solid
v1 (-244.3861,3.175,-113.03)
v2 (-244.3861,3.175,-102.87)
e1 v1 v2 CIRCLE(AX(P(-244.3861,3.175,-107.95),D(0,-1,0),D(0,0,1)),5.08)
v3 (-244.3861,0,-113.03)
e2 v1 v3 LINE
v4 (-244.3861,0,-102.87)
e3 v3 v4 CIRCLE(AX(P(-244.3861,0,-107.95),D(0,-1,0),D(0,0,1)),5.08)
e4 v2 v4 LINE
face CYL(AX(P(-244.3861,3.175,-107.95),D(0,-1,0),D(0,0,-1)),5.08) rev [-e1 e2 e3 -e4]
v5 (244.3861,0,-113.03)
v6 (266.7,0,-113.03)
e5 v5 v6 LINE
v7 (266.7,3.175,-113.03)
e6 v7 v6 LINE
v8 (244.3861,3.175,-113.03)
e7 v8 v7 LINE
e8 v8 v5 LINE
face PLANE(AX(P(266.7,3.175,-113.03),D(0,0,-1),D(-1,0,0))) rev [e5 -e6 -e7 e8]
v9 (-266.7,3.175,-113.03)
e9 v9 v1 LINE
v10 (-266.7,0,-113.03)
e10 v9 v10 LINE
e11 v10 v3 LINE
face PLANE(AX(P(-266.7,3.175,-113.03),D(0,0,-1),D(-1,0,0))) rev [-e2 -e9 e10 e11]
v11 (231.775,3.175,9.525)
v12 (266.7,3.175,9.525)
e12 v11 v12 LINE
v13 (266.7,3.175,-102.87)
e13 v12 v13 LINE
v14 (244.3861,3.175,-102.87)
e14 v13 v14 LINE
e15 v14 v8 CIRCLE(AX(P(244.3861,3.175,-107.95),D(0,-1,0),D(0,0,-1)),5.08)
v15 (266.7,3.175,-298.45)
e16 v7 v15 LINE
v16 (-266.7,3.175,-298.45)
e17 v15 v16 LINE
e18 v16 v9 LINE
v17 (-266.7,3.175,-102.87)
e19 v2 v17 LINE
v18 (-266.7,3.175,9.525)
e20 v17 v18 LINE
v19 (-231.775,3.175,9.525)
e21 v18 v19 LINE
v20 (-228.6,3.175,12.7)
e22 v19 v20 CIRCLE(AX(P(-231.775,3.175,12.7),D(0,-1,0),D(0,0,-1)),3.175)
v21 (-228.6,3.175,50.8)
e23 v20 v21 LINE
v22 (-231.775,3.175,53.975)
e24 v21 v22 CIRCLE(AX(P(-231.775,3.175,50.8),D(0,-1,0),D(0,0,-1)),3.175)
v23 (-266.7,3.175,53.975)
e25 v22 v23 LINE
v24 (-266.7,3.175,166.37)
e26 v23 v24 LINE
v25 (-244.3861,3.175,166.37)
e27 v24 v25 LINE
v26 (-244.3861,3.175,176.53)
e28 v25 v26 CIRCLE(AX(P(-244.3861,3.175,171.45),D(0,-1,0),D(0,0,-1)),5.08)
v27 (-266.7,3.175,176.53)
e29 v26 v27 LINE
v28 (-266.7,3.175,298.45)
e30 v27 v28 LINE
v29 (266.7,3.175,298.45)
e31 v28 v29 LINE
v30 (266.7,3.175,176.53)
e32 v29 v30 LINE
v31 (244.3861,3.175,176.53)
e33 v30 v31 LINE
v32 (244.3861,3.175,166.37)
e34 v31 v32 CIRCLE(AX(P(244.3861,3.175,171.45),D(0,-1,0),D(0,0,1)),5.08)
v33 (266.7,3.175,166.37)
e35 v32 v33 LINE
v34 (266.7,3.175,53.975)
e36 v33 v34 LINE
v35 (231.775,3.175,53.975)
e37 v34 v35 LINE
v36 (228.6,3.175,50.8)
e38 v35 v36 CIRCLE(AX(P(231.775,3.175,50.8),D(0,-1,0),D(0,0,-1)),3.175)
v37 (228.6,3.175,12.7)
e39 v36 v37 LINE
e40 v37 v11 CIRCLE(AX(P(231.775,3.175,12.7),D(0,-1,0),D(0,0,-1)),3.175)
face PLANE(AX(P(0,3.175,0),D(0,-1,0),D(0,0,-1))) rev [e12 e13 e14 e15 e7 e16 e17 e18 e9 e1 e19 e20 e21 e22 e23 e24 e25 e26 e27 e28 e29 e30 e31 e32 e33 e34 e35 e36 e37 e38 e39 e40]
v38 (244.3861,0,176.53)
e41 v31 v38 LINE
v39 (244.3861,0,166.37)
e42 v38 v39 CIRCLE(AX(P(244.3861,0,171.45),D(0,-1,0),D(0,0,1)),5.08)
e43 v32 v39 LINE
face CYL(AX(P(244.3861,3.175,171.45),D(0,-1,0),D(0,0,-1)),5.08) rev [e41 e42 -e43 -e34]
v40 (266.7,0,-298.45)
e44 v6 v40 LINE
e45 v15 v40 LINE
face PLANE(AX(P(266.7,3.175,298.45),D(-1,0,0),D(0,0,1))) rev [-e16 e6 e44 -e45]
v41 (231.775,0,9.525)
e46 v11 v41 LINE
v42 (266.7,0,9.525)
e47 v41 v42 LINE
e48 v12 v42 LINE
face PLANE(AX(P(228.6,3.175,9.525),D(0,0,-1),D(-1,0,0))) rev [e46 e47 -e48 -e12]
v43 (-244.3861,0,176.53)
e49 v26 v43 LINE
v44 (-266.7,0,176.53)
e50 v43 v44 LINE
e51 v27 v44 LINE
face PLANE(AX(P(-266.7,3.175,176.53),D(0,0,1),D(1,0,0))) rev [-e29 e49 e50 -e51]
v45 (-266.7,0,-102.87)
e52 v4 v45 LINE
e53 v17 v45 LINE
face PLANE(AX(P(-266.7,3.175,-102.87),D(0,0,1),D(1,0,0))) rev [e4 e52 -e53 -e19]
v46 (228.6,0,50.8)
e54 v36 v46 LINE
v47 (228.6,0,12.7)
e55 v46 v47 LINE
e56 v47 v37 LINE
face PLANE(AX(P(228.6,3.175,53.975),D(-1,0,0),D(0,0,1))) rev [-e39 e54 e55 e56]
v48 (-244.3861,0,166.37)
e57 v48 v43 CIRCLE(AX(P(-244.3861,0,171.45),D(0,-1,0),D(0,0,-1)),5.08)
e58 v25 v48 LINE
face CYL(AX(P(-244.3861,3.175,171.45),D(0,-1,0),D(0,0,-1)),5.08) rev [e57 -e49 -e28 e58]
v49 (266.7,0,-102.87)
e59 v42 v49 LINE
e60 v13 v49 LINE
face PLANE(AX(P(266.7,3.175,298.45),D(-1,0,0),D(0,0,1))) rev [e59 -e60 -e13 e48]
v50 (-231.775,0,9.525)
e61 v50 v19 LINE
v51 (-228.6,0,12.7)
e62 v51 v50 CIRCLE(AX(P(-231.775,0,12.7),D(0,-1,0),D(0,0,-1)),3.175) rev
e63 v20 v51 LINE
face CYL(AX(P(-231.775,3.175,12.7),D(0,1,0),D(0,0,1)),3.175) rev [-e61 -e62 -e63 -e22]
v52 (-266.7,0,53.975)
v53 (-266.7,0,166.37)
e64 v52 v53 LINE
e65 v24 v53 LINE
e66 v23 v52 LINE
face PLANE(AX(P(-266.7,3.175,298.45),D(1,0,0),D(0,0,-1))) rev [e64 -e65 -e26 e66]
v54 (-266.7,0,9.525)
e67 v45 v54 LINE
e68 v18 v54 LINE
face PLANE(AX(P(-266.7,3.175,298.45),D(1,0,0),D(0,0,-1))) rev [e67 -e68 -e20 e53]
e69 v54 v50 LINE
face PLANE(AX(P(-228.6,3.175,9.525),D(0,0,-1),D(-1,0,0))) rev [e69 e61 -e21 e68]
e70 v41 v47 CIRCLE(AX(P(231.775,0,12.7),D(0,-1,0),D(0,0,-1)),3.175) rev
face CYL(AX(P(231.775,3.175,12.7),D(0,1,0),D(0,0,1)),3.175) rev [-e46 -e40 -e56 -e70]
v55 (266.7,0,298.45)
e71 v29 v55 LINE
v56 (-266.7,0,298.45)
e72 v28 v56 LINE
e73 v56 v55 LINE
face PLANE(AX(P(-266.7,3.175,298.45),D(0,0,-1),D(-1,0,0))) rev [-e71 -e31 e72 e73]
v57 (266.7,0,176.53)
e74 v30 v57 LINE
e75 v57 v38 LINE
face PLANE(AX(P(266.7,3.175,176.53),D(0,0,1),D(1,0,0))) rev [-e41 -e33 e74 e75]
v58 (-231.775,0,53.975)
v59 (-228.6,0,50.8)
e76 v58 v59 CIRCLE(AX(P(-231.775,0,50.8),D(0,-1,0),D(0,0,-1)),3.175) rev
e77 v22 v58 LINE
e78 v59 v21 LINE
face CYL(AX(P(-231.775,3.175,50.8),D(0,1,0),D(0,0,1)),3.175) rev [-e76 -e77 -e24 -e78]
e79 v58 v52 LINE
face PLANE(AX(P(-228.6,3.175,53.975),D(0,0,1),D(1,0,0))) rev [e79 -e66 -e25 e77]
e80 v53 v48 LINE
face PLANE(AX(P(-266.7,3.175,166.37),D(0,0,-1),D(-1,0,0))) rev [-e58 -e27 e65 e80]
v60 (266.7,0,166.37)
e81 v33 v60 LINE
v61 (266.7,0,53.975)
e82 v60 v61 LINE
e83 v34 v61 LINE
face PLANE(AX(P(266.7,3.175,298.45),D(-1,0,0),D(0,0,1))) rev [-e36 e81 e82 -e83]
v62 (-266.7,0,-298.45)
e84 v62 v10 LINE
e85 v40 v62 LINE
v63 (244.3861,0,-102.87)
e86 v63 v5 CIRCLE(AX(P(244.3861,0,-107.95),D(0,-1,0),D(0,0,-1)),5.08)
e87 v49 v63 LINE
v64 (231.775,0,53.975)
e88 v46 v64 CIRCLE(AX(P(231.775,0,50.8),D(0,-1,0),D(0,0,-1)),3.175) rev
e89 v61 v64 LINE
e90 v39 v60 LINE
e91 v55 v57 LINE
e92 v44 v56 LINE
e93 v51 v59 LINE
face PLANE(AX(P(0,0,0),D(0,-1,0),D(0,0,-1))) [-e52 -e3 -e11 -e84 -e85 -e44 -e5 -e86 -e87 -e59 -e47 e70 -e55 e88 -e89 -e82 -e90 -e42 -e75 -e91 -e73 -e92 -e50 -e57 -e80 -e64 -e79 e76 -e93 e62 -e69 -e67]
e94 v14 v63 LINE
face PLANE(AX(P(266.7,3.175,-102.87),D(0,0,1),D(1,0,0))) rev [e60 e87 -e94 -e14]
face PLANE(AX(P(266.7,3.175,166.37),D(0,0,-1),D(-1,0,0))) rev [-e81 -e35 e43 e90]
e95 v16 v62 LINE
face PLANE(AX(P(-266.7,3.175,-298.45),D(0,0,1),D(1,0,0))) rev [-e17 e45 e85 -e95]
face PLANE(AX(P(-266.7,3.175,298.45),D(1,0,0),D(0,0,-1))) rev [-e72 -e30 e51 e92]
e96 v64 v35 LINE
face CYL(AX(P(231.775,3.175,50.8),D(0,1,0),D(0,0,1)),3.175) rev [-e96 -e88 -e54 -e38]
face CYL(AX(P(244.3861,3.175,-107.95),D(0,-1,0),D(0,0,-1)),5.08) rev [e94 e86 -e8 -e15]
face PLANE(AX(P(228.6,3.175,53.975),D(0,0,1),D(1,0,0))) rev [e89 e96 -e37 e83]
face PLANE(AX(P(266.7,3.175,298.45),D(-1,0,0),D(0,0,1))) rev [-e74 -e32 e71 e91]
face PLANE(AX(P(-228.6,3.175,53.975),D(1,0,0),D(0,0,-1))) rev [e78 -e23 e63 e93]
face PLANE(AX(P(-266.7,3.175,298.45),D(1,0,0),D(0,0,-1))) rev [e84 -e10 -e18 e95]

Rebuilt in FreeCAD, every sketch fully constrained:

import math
import FreeCAD as App
import Part
import Sketcher

V = App.Vector
Q = App.Units.Quantity


def edges_at(feature, points):
    """Names of the edges that pass closest to the given points."""
    edges = feature.Shape.Edges
    near = lambda p: min(range(len(edges)), key=lambda i: edges[i].distToShape(Part.Vertex(*p))[0])
    return sorted({f"Edge{near(p) + 1}" for p in points})

doc = App.newDocument("Part")
body = doc.addObject("PartDesign::Body", "Body")

sketch1 = doc.addObject("Sketcher::SketchObject", "Sketch")
body.addObject(sketch1)
sketch1.AttachmentSupport = (doc.XZ_Plane, [""])
sketch1.MapMode = "FlatFace"
sketch1.addGeometry([
    Part.LineSegment(V(-267, -298, 0), V(-267, 298, 0)),
    Part.LineSegment(V(-267, 298, 0), V(267, 298, 0)),
    Part.LineSegment(V(267, 298, 0), V(267, -298, 0)),
    Part.LineSegment(V(267, -298, 0), V(-267, -298, 0)),
], False)
sketch1.addConstraint([
    Sketcher.Constraint("Coincident", 0, 2, 1, 1),
    Sketcher.Constraint("Coincident", 1, 2, 2, 1),
    Sketcher.Constraint("Coincident", 2, 2, 3, 1),
    Sketcher.Constraint("Coincident", 3, 2, 0, 1),
    Sketcher.Constraint("Vertical", 0),
    Sketcher.Constraint("Horizontal", 1),
    Sketcher.Constraint("Vertical", 2),
    Sketcher.Constraint("Horizontal", 3),
    Sketcher.Constraint("Symmetric", 0, 2, 2, 2, -1, 1),
    Sketcher.Constraint("DistanceX", 1, 1, 1, 2, Q("21 in")),
    Sketcher.Constraint("DistanceY", 0, 1, 0, 2, Q("23.5 in")),
])
pad1 = doc.addObject("PartDesign::Pad", "Pad")
body.addObject(pad1)
pad1.Profile = sketch1
pad1.Length = Q("0.125 in")
pad1.Reversed = True

sketch2 = doc.addObject("Sketcher::SketchObject", "Sketch001")
body.addObject(sketch2)
sketch2.AttachmentSupport = (doc.XZ_Plane, [""])
sketch2.MapMode = "FlatFace"
sketch2.addGeometry([
    Part.LineSegment(V(-267, 54, 0), V(-267, 10, 0)),
    Part.LineSegment(V(-267, 10, 0), V(-229, 10, 0)),
    Part.LineSegment(V(-229, 10, 0), V(-229, 54, 0)),
    Part.LineSegment(V(-229, 54, 0), V(-267, 54, 0)),
    Part.LineSegment(V(229, 54, 0), V(229, 10, 0)),
    Part.LineSegment(V(229, 10, 0), V(267, 10, 0)),
    Part.LineSegment(V(267, 10, 0), V(267, 54, 0)),
    Part.LineSegment(V(267, 54, 0), V(229, 54, 0)),
], False)
sketch2.addConstraint([
    Sketcher.Constraint("Coincident", 0, 2, 1, 1),
    Sketcher.Constraint("Coincident", 1, 2, 2, 1),
    Sketcher.Constraint("Coincident", 2, 2, 3, 1),
    Sketcher.Constraint("Coincident", 3, 2, 0, 1),
    Sketcher.Constraint("Coincident", 4, 2, 5, 1),
    Sketcher.Constraint("Coincident", 5, 2, 6, 1),
    Sketcher.Constraint("Coincident", 6, 2, 7, 1),
    Sketcher.Constraint("Coincident", 7, 2, 4, 1),
    Sketcher.Constraint("Vertical", 0),
    Sketcher.Constraint("Horizontal", 1),
    Sketcher.Constraint("Vertical", 2),
    Sketcher.Constraint("Horizontal", 3),
    Sketcher.Constraint("Vertical", 4),
    Sketcher.Constraint("Horizontal", 5),
    Sketcher.Constraint("Vertical", 6),
    Sketcher.Constraint("Horizontal", 7),
    Sketcher.Constraint("Symmetric", 1, 2, 4, 2, -2),
    Sketcher.Constraint("Symmetric", 3, 2, 6, 2, -2),
    Sketcher.Constraint("DistanceX", 1, 1, 1, 2, Q("1.5 in")),
    Sketcher.Constraint("DistanceX", 1, 2, -1, 1, Q("9 in")),
    Sketcher.Constraint("DistanceY", 0, 2, 0, 1, Q("1.75 in")),
    Sketcher.Constraint("DistanceY", -1, 1, 0, 2, Q("0.375 in")),
])
pocket1 = doc.addObject("PartDesign::Pocket", "Pocket")
body.addObject(pocket1)
pocket1.Profile = sketch2
pocket1.Type = "ThroughAll"
doc.recompute()

fillet = doc.addObject("PartDesign::Fillet", "Fillet")
body.addObject(fillet)
fillet.Base = (pocket1, edges_at(pocket1, [
    (-228.6, 1.587, 53.975),
    (-228.6, 1.587, 9.525),
    (228.6, 1.587, 9.525),
    (228.6, 1.587, 53.975),
]))
fillet.Radius = Q("0.125 in")

sketch3 = doc.addObject("Sketcher::SketchObject", "Sketch002")
body.addObject(sketch3)
sketch3.AttachmentSupport = (doc.XZ_Plane, [""])
sketch3.MapMode = "FlatFace"
sketch3.addGeometry([
    Part.LineSegment(V(-244, 177, 0), V(-267, 177, 0)),
    Part.ArcOfCircle(Part.Circle(V(-267, 171, 0), V(0, 0, 1), 5), math.radians(90), math.radians(270)),
    Part.LineSegment(V(-267, 166, 0), V(-244, 166, 0)),
    Part.ArcOfCircle(Part.Circle(V(-244, 171, 0), V(0, 0, 1), 5), math.radians(-90), math.radians(90)),
    Part.LineSegment(V(-267, -113, 0), V(-244, -113, 0)),
    Part.ArcOfCircle(Part.Circle(V(-244, -108, 0), V(0, 0, 1), 5), math.radians(-90), math.radians(90)),
    Part.LineSegment(V(-244, -103, 0), V(-267, -103, 0)),
    Part.ArcOfCircle(Part.Circle(V(-267, -108, 0), V(0, 0, 1), 5), math.radians(90), math.radians(270)),
    Part.LineSegment(V(267, 177, 0), V(244, 177, 0)),
    Part.ArcOfCircle(Part.Circle(V(244, 171, 0), V(0, 0, 1), 5), math.radians(90), math.radians(270)),
    Part.LineSegment(V(244, 166, 0), V(267, 166, 0)),
    Part.ArcOfCircle(Part.Circle(V(267, 171, 0), V(0, 0, 1), 5), math.radians(-90), math.radians(90)),
    Part.LineSegment(V(244, -113, 0), V(267, -113, 0)),
    Part.ArcOfCircle(Part.Circle(V(267, -108, 0), V(0, 0, 1), 5), math.radians(-90), math.radians(90)),
    Part.LineSegment(V(267, -103, 0), V(244, -103, 0)),
    Part.ArcOfCircle(Part.Circle(V(244, -108, 0), V(0, 0, 1), 5), math.radians(90), math.radians(270)),
], False)
sketch3.addConstraint([
    Sketcher.Constraint("Tangent", 0, 2, 1, 1),
    Sketcher.Constraint("Tangent", 1, 2, 2, 1),
    Sketcher.Constraint("Tangent", 2, 2, 3, 1),
    Sketcher.Constraint("Tangent", 3, 2, 0, 1),
    Sketcher.Constraint("Tangent", 4, 2, 5, 1),
    Sketcher.Constraint("Tangent", 5, 2, 6, 1),
    Sketcher.Constraint("Tangent", 6, 2, 7, 1),
    Sketcher.Constraint("Tangent", 7, 2, 4, 1),
    Sketcher.Constraint("Tangent", 8, 2, 9, 1),
    Sketcher.Constraint("Tangent", 9, 2, 10, 1),
    Sketcher.Constraint("Tangent", 10, 2, 11, 1),
    Sketcher.Constraint("Tangent", 11, 2, 8, 1),
    Sketcher.Constraint("Tangent", 12, 2, 13, 1),
    Sketcher.Constraint("Tangent", 13, 2, 14, 1),
    Sketcher.Constraint("Tangent", 14, 2, 15, 1),
    Sketcher.Constraint("Tangent", 15, 2, 12, 1),
    Sketcher.Constraint("Horizontal", 0),
    Sketcher.Constraint("Horizontal", 2),
    Sketcher.Constraint("Horizontal", 4),
    Sketcher.Constraint("Horizontal", 6),
    Sketcher.Constraint("Horizontal", 8),
    Sketcher.Constraint("Horizontal", 10),
    Sketcher.Constraint("Horizontal", 12),
    Sketcher.Constraint("Horizontal", 14),
    Sketcher.Constraint("Equal", 3, 5),
    Sketcher.Constraint("Equal", 7, 9),
    Sketcher.Constraint("Equal", 11, 13),
    Sketcher.Constraint("Symmetric", 3, 3, 9, 3, -2),
    Sketcher.Constraint("Symmetric", 7, 3, 13, 3, -2),
    Sketcher.Constraint("Vertical", 3, 3, 5, 3),
    Sketcher.Constraint("Vertical", 1, 3, 7, 3),
    Sketcher.Constraint("Vertical", 11, 3, 13, 3),
    Sketcher.Constraint("Vertical", 9, 3, 15, 3),
    Sketcher.Constraint("Radius", 1, Q("0.2 in")),
    Sketcher.Constraint("DistanceY", 5, 3, 3, 3, Q("11 in")),
    Sketcher.Constraint("DistanceX", 1, 3, 11, 3, Q("21 in")),
    Sketcher.Constraint("DistanceY", -1, 1, 1, 3, Q("6.75 in")),
    Sketcher.Constraint("DistanceX", 0, 2, 0, 1, Q("0.8785 in")),
])
pocket2 = doc.addObject("PartDesign::Pocket", "Pocket001")
body.addObject(pocket2)
pocket2.Profile = sketch3
pocket2.Type = "ThroughAll"

doc.recompute()
